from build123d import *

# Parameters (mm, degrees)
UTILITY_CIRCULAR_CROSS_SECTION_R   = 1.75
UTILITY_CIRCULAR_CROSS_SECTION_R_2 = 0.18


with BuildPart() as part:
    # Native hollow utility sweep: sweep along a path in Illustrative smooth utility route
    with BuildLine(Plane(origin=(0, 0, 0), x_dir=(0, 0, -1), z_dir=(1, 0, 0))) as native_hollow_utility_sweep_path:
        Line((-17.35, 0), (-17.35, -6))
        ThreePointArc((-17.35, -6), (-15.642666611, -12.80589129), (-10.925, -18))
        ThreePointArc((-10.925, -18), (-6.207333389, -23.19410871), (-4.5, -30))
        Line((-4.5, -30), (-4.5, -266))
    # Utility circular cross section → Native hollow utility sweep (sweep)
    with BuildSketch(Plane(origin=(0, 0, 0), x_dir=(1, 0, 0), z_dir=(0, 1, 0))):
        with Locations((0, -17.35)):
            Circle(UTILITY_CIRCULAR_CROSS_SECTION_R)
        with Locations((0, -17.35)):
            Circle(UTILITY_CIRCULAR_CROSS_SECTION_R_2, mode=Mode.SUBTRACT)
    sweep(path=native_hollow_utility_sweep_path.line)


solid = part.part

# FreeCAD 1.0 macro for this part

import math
import FreeCAD as App
import Part
import Sketcher

V = App.Vector
Q = App.Units.Quantity

doc = App.newDocument("Part")
body = doc.addObject("PartDesign::Body", "Body")

# Sketch on XZ plane
sketch1 = doc.addObject("Sketcher::SketchObject", "Sketch")
body.addObject(sketch1)
sketch1.AttachmentSupport = (doc.XZ_Plane, [""])
sketch1.MapMode = "FlatFace"
sketch1.addGeometry(Part.Circle(V(0, 17.35, 0), V(0, 0, 1), 1.75), False)
sketch1.addGeometry(Part.Circle(V(0, 17.35, 0), V(0, 0, 1), 0.18), False)
sketch1.addConstraint(Sketcher.Constraint("Coincident", 1, 3, 0, 3))
sketch1.addConstraint(Sketcher.Constraint("PointOnObject", 0, 3, -2))
sketch1.addConstraint(Sketcher.Constraint("Diameter", 0, Q("3.5 mm")))
sketch1.addConstraint(Sketcher.Constraint("Diameter", 1, Q("0.36 mm")))
sketch1.addConstraint(Sketcher.Constraint("DistanceY", -1, 1, 0, 3, Q("17.35 mm")))

# Sketch on YZ plane
sketch2 = doc.addObject("Sketcher::SketchObject", "Sketch001")
body.addObject(sketch2)
sketch2.AttachmentSupport = (doc.YZ_Plane, [""])
sketch2.MapMode = "FlatFace"
sketch2.addGeometry(Part.LineSegment(V(0, 17, 0), V(-6, 17, 0)), False)
sketch2.addGeometry(Part.ArcOfCircle(Part.Circle(V(-6, 3, 0), V(0, 0, 1), 14), math.radians(90), math.radians(146)), False)
sketch2.addGeometry(Part.ArcOfCircle(Part.Circle(V(-30, 19, 0), V(0, 0, 1), 14), math.radians(-90), math.radians(-34)), False)
sketch2.addGeometry(Part.LineSegment(V(-30, 4, 0), V(-266, 4, 0)), False)
sketch2.addConstraint(Sketcher.Constraint("Tangent", 0, 2, 1, 1))
sketch2.addConstraint(Sketcher.Constraint("Tangent", 1, 2, 2, 2))
sketch2.addConstraint(Sketcher.Constraint("Tangent", 2, 1, 3, 1))
sketch2.addConstraint(Sketcher.Constraint("Horizontal", 0))
sketch2.addConstraint(Sketcher.Constraint("Horizontal", 3))
sketch2.addConstraint(Sketcher.Constraint("Equal", 1, 2))
sketch2.addConstraint(Sketcher.Constraint("PointOnObject", 0, 1, -2))
sketch2.addConstraint(Sketcher.Constraint("DistanceX", 0, 2, 0, 1, Q("6 mm")))
sketch2.addConstraint(Sketcher.Constraint("DistanceX", 3, 2, 3, 1, Q("236 mm")))
sketch2.addConstraint(Sketcher.Constraint("DistanceX", 2, 3, -1, 1, Q("30 mm")))
sketch2.addConstraint(Sketcher.Constraint("DistanceY", -1, 1, 2, 1, Q("4.5 mm")))
sketch2.addConstraint(Sketcher.Constraint("DistanceY", -1, 1, 0, 1, Q("17.35 mm")))
doc.recompute()

additivepipe = doc.addObject("PartDesign::AdditivePipe", "AdditivePipe")
body.addObject(additivepipe)
additivepipe.Profile = sketch1
additivepipe.Spine = (sketch2, ["Edge1", "Edge2", "Edge3", "Edge4"])

doc.recompute()
